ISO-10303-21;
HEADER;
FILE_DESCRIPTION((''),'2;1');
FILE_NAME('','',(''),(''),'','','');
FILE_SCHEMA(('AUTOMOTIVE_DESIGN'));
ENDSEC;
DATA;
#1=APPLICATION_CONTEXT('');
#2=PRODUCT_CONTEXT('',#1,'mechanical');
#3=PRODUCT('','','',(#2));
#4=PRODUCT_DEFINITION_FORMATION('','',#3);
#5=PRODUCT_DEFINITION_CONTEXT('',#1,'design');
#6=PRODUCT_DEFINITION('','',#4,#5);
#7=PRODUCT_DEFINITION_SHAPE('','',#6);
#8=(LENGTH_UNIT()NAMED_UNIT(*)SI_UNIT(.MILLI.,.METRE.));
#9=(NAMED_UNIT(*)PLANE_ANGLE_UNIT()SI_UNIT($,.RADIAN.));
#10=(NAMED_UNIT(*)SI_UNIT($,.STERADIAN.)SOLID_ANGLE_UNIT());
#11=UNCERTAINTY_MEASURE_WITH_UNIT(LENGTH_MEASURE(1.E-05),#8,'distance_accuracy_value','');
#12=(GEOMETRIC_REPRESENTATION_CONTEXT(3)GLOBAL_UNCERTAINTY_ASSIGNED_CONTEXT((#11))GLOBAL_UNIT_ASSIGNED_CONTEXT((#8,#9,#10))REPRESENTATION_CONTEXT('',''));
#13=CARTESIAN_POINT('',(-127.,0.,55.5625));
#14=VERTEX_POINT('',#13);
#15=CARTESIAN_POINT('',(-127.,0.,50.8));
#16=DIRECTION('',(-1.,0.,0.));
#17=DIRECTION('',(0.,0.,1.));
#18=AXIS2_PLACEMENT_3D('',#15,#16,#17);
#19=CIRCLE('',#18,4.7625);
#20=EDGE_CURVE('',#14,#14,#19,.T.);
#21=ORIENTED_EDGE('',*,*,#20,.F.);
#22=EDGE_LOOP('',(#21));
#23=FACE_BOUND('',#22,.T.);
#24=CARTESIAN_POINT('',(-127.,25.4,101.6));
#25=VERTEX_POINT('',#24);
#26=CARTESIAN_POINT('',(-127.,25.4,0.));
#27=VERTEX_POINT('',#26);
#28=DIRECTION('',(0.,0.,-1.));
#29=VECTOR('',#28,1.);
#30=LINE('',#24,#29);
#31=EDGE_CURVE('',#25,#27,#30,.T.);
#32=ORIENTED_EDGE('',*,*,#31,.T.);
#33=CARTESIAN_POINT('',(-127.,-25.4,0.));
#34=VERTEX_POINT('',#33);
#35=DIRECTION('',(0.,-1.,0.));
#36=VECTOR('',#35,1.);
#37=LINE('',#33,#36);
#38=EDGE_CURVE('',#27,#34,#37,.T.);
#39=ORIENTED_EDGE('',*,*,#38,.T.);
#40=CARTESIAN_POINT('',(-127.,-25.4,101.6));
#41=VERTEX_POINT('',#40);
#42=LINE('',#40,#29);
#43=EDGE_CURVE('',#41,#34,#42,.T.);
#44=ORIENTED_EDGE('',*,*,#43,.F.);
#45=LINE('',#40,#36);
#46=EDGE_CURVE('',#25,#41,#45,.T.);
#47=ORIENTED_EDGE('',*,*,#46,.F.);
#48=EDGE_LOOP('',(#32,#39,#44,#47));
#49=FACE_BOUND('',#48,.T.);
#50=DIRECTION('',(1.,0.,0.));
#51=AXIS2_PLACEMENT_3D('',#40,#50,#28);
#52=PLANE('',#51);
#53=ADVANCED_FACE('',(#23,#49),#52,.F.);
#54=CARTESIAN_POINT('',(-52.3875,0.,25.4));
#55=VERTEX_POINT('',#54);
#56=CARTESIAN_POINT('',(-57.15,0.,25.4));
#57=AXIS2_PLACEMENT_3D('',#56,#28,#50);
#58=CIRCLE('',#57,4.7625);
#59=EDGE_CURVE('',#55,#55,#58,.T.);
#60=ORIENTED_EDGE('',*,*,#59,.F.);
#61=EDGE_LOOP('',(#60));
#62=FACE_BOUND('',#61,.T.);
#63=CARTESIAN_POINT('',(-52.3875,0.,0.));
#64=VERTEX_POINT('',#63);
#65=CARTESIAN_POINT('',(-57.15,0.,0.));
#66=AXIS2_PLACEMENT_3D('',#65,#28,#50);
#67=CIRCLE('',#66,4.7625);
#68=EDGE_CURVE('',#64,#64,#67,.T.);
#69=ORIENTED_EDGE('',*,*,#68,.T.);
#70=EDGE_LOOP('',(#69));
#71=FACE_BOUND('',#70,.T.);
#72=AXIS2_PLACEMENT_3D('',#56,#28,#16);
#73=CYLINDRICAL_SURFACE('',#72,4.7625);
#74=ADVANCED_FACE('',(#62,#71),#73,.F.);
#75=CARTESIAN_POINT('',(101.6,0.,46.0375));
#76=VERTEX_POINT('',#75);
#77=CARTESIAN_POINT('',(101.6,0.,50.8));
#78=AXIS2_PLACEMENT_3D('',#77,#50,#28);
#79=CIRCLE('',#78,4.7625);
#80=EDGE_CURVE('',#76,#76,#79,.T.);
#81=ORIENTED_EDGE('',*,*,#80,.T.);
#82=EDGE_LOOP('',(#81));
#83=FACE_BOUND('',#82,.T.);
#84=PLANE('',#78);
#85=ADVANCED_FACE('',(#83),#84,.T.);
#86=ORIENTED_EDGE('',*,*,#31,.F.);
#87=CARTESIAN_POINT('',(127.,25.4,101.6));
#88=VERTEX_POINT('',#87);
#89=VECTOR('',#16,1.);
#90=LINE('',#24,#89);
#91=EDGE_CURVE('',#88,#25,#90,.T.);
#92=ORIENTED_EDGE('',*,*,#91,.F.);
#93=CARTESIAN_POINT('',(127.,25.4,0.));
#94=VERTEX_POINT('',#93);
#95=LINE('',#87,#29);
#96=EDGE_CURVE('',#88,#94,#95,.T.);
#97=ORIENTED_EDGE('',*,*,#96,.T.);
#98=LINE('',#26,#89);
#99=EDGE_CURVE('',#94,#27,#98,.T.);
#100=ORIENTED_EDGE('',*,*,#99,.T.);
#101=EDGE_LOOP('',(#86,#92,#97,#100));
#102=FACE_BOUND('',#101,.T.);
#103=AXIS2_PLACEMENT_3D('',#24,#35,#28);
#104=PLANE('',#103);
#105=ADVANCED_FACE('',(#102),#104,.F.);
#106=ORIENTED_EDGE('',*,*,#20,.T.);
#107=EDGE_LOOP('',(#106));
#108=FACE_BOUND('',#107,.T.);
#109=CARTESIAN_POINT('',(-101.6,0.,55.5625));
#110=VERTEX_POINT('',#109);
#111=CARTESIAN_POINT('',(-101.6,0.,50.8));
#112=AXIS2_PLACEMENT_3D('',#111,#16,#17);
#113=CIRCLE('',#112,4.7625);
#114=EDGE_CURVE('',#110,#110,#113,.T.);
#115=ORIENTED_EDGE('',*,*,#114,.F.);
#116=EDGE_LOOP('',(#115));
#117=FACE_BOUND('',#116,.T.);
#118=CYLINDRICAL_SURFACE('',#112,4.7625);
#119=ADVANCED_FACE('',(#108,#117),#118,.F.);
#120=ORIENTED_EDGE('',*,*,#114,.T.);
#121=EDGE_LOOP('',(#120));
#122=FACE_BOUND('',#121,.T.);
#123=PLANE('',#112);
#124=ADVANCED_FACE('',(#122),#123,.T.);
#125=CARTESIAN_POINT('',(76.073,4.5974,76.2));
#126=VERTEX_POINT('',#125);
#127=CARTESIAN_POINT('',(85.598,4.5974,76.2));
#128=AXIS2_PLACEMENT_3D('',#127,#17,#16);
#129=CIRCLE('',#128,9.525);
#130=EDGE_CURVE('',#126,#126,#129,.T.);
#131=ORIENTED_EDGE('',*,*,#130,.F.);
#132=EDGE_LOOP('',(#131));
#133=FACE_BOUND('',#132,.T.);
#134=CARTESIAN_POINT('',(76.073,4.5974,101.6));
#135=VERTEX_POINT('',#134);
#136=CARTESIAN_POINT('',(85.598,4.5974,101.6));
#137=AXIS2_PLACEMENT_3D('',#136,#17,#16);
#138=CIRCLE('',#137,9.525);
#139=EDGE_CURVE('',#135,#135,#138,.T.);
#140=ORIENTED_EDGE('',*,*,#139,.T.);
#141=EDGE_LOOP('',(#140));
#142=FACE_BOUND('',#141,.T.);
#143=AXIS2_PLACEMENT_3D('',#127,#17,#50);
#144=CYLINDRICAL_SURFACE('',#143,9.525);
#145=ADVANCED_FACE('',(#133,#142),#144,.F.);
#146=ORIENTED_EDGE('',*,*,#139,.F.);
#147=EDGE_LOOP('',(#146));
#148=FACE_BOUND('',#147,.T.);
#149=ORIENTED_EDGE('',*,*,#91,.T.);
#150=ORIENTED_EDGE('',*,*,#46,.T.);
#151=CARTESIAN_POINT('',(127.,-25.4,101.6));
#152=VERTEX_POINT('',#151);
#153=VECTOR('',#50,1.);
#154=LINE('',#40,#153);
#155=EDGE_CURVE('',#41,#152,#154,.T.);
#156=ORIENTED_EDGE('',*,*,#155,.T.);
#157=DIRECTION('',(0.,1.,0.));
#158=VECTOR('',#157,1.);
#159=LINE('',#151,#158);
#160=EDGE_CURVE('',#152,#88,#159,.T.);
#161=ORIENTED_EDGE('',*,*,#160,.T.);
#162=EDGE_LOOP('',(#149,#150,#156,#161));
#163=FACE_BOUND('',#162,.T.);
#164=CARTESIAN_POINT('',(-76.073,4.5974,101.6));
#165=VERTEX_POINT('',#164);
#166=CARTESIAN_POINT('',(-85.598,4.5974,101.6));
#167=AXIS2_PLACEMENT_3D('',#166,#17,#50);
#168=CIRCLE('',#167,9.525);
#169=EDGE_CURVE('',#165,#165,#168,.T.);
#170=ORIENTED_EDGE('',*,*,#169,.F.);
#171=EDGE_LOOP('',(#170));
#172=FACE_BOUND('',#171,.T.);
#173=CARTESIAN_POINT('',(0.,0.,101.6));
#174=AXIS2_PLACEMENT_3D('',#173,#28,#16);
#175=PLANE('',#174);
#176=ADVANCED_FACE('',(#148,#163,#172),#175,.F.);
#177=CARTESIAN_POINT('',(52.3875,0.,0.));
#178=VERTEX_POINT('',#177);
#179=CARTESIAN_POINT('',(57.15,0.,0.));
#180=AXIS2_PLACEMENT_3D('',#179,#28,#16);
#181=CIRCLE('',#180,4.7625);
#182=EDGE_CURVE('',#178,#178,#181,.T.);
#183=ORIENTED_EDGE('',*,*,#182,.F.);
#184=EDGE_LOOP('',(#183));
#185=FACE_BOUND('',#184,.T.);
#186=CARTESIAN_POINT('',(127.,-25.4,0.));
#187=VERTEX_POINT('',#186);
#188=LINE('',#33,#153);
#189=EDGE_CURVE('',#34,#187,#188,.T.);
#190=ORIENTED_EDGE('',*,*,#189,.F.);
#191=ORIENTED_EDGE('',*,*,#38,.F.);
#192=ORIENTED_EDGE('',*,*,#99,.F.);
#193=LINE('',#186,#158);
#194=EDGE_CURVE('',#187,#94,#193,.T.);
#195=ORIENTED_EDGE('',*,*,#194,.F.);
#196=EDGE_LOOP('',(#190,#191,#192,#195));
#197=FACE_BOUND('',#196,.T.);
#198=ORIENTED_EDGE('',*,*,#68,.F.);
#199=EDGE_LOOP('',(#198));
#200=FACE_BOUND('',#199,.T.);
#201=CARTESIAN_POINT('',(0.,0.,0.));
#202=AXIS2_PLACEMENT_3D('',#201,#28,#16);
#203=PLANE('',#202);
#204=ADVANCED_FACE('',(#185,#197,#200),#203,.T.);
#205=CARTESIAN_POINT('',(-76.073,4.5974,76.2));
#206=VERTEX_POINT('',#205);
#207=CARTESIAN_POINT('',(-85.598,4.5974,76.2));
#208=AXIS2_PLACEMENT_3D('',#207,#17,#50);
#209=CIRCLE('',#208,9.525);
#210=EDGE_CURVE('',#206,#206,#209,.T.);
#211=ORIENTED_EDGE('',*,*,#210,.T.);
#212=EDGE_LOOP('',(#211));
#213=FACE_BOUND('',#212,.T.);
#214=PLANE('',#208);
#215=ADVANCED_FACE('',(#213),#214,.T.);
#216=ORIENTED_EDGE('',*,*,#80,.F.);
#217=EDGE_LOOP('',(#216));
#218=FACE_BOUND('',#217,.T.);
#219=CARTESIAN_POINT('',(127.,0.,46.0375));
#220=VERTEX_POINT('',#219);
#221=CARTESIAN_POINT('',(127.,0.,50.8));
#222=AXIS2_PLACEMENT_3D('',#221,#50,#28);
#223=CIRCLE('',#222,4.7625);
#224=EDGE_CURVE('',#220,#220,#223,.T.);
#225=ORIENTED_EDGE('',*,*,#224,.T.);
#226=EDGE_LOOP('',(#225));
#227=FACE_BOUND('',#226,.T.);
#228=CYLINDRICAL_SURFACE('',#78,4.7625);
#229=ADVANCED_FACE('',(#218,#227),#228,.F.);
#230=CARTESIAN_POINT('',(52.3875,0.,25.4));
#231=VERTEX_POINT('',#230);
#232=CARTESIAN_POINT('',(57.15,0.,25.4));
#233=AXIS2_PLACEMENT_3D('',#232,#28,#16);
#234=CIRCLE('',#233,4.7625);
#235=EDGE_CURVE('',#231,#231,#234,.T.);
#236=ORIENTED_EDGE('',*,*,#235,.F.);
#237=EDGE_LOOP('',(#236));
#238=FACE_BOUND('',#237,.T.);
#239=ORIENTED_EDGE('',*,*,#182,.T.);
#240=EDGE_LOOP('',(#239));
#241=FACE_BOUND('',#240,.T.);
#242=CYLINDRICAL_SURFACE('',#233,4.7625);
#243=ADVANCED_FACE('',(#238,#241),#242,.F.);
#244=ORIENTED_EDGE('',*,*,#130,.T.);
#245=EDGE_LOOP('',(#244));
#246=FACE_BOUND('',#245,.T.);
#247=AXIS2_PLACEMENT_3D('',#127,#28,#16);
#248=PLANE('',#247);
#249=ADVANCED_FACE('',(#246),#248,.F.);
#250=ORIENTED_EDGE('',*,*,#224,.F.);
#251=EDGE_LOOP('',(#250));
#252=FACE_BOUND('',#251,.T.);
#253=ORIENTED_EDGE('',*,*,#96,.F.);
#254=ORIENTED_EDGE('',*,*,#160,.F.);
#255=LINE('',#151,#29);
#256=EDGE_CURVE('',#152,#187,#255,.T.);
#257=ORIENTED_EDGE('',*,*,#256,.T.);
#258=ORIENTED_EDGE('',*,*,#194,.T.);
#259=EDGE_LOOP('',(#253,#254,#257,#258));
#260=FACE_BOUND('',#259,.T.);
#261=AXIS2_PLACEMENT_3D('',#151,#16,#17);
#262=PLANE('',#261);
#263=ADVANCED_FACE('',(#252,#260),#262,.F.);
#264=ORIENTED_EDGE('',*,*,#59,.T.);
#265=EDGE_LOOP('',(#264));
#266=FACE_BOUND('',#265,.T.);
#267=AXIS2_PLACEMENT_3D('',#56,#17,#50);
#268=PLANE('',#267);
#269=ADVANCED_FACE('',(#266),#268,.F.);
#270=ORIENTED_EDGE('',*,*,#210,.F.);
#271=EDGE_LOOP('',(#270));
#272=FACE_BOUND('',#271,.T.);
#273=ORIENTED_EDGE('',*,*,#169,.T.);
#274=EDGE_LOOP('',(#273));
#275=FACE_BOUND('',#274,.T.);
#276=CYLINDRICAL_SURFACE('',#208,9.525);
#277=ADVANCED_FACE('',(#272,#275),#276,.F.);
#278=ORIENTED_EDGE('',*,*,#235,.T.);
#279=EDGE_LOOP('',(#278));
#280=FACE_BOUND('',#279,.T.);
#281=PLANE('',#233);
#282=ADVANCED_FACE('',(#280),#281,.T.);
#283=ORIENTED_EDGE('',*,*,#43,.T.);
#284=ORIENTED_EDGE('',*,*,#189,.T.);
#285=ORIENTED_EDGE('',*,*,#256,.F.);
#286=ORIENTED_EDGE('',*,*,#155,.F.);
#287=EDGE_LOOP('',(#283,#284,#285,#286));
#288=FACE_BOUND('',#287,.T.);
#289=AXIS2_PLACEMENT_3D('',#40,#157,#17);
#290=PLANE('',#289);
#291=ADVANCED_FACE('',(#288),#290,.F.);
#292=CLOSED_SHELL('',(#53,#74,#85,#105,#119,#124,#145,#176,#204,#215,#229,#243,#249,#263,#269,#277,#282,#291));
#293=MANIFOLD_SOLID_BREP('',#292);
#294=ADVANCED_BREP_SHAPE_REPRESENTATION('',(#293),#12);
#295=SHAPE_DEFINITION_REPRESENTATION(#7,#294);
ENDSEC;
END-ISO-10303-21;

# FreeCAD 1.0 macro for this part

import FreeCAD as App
import Part
import Sketcher
from FreeCAD import Vector
Q = App.Units.Quantity

doc = App.newDocument("Part")
body = doc.addObject("PartDesign::Body", "Body")

# Sketch on XY plane
sketch1 = body.newObject("Sketcher::SketchObject", "Sketch")
sketch1.AttachmentSupport = (doc.getObject("XY_Plane"), [""])
sketch1.MapMode = "FlatFace"
sketch1.addGeometry([
    Part.LineSegment(Vector(-127, 25.4, 0), Vector(-127, -25.4, 0)),
    Part.LineSegment(Vector(-127, -25.4, 0), Vector(127, -25.4, 0)),
    Part.LineSegment(Vector(127, -25.4, 0), Vector(127, 25.4, 0)),
    Part.LineSegment(Vector(127, 25.4, 0), Vector(-127, 25.4, 0)),
], False)
sketch1.addConstraint([
    Sketcher.Constraint("Coincident", 0, 2, 1, 1),
    Sketcher.Constraint("Coincident", 1, 2, 2, 1),
    Sketcher.Constraint("Coincident", 2, 2, 3, 1),
    Sketcher.Constraint("Coincident", 3, 2, 0, 1),
    Sketcher.Constraint("Vertical", 0),
    Sketcher.Constraint("Horizontal", 1),
    Sketcher.Constraint("Vertical", 2),
    Sketcher.Constraint("Horizontal", 3),
    Sketcher.Constraint("Symmetric", 0, 2, 2, 2, -1, 1),
    Sketcher.Constraint("DistanceX", 1, 1, 1, 2, Q("10 in")),
    Sketcher.Constraint("DistanceY", 0, 2, 0, 1, Q("2 in")),
])
pad1 = body.newObject("PartDesign::Pad", "Pad")
pad1.Profile = sketch1
pad1.Length = Q("4 in")

# Sketch on XY plane
sketch2 = body.newObject("Sketcher::SketchObject", "Sketch001")
sketch2.AttachmentSupport = (doc.getObject("XY_Plane"), [""])
sketch2.MapMode = "FlatFace"
sketch2.AttachmentOffset = App.Placement(Vector(0, 0, 4 * 25.4), App.Rotation())
sketch2.addGeometry([
    Part.Circle(Vector(-85.598, 4.5974, 0), Vector(0, 0, 1), 9.525),
    Part.Circle(Vector(85.598, 4.5974, 0), Vector(0, 0, 1), 9.525),
], False)
sketch2.addConstraint([
    Sketcher.Constraint("Equal", 0, 1),
    Sketcher.Constraint("Symmetric", 0, 3, 1, 3, -2),
    Sketcher.Constraint("Diameter", 0, Q("0.75 in")),
    Sketcher.Constraint("DistanceX", 0, 3, -1, 1, Q("3.37 in")),
    Sketcher.Constraint("DistanceY", -1, 1, 0, 3, Q("0.181 in")),
])
pocket1 = body.newObject("PartDesign::Pocket", "Pocket")
pocket1.Profile = sketch2
pocket1.Length = Q("1 in")

# Sketch on XY plane
sketch3 = body.newObject("Sketcher::SketchObject", "Sketch002")
sketch3.AttachmentSupport = (doc.getObject("XY_Plane"), [""])
sketch3.MapMode = "FlatFace"
sketch3.addGeometry([
    Part.Circle(Vector(57.15, 0, 0), Vector(0, 0, 1), 4.7625),
    Part.Circle(Vector(-57.15, 0, 0), Vector(0, 0, 1), 4.7625),
], False)
sketch3.addConstraint([
    Sketcher.Constraint("Equal", 0, 1),
    Sketcher.Constraint("Symmetric", 0, 3, 1, 3, -1, 1),
    Sketcher.Constraint("PointOnObject", 0, 3, -1),
    Sketcher.Constraint("Diameter", 0, Q("0.375 in")),
    Sketcher.Constraint("DistanceX", 1, 3, 0, 3, Q("4.5 in")),
])
pocket2 = body.newObject("PartDesign::Pocket", "Pocket001")
pocket2.Profile = sketch3
pocket2.Length = Q("1 in")
pocket2.Reversed = True

# Sketch on YZ plane
sketch4 = body.newObject("Sketcher::SketchObject", "Sketch003")
sketch4.AttachmentSupport = (doc.getObject("YZ_Plane"), [""])
sketch4.MapMode = "FlatFace"
sketch4.AttachmentOffset = App.Placement(Vector(0, 0, 5 * 25.4), App.Rotation())
sketch4.addGeometry(Part.Circle(Vector(0, 50.8, 0), Vector(0, 0, 1), 4.7625), False)
sketch4.addConstraint([
    Sketcher.Constraint("PointOnObject", 0, 3, -2),
    Sketcher.Constraint("Diameter", 0, Q("0.375 in")),
    Sketcher.Constraint("DistanceY", -1, 1, 0, 3, Q("2 in")),
])
pocket3 = body.newObject("PartDesign::Pocket", "Pocket002")
pocket3.Profile = sketch4
pocket3.Length = Q("1 in")

# Sketch on YZ plane
sketch5 = body.newObject("Sketcher::SketchObject", "Sketch004")
sketch5.AttachmentSupport = (doc.getObject("YZ_Plane"), [""])
sketch5.MapMode = "FlatFace"
sketch5.AttachmentOffset = App.Placement(Vector(0, 0, -4 * 25.4), App.Rotation())
sketch5.addGeometry(Part.Circle(Vector(0, 50.8, 0), Vector(0, 0, 1), 4.7625), False)
sketch5.addConstraint([
    Sketcher.Constraint("PointOnObject", 0, 3, -2),
    Sketcher.Constraint("Diameter", 0, Q("0.375 in")),
    Sketcher.Constraint("DistanceY", -1, 1, 0, 3, Q("2 in")),
])
pocket4 = body.newObject("PartDesign::Pocket", "Pocket003")
pocket4.Profile = sketch5
pocket4.Length = Q("1 in")

doc.recompute()
